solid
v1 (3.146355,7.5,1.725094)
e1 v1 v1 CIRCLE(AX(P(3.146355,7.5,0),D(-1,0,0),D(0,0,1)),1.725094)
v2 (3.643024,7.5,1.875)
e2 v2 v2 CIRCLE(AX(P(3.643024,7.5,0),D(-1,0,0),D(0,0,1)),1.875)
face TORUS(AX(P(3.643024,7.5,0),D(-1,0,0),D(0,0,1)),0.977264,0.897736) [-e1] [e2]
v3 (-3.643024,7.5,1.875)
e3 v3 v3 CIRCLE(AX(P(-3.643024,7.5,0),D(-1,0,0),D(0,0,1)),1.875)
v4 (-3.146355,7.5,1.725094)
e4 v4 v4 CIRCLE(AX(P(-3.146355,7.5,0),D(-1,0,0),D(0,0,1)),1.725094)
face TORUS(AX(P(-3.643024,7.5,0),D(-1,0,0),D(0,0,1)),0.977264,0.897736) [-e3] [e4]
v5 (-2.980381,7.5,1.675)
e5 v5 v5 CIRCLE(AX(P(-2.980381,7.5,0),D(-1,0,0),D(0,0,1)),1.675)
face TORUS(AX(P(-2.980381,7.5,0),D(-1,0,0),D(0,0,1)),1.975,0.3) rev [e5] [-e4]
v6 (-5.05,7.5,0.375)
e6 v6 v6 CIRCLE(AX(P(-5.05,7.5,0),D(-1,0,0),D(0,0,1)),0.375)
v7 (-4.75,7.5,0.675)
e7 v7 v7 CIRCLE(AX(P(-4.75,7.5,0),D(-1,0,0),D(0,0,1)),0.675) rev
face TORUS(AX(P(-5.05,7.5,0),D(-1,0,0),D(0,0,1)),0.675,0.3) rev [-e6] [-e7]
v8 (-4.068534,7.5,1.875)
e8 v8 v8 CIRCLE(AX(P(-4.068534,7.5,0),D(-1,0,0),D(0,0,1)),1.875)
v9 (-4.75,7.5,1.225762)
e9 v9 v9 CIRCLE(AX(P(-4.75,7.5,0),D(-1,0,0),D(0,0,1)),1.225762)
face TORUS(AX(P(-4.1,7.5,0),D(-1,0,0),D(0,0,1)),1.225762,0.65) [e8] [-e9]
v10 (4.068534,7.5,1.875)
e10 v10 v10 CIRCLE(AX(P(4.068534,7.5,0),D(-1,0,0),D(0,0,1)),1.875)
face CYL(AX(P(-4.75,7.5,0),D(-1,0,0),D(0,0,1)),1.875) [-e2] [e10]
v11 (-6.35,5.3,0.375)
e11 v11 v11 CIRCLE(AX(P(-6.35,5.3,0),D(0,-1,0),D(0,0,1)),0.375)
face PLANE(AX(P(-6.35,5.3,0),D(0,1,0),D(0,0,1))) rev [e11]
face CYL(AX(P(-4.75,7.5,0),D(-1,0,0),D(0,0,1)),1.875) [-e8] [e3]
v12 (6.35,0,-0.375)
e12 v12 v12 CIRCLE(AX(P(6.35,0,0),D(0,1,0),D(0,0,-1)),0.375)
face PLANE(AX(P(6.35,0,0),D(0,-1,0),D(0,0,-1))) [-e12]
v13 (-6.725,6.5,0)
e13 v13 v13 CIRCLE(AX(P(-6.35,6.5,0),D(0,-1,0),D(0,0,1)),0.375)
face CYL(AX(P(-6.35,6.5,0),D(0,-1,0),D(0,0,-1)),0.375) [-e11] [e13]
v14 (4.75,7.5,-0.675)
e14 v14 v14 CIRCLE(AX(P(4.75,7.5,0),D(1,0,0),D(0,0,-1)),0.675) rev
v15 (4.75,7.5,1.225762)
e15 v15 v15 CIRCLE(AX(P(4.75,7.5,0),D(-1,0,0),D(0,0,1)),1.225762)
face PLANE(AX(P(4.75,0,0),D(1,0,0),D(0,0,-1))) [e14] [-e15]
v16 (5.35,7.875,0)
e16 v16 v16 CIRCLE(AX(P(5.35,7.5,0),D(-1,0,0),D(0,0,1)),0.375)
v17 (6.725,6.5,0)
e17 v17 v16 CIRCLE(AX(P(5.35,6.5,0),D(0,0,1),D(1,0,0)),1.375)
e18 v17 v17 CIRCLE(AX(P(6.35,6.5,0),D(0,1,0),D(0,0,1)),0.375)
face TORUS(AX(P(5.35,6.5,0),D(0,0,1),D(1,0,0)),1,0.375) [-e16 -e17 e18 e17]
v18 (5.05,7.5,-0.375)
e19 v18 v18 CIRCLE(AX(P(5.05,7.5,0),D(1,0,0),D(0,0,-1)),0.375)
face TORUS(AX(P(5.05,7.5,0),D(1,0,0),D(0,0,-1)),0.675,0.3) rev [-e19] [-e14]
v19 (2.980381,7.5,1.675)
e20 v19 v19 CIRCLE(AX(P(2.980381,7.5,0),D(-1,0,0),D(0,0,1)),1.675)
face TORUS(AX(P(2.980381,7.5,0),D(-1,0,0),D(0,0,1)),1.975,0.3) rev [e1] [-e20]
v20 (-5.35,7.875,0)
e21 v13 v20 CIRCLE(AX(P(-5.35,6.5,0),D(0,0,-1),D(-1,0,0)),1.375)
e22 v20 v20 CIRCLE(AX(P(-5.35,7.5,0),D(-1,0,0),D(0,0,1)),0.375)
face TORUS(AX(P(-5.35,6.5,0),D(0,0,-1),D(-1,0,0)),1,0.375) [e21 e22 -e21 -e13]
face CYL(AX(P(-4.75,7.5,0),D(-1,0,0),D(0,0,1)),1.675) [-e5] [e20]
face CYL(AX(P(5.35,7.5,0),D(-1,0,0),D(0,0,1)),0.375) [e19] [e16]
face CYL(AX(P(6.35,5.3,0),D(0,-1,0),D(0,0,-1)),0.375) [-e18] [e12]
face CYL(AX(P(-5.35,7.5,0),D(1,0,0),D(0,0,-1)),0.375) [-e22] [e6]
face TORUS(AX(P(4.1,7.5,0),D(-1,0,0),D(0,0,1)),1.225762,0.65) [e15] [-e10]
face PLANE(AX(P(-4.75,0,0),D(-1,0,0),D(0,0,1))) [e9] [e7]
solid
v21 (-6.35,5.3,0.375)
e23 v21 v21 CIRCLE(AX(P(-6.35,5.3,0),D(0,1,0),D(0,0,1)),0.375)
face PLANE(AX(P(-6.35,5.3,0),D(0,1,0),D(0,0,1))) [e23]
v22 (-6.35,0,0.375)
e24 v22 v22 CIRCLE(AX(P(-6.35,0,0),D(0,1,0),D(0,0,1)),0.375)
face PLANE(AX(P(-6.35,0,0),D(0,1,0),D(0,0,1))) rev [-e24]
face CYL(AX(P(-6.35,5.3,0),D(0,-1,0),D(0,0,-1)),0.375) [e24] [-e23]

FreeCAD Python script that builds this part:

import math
import FreeCAD as App
import Part
import Sketcher


def edges_at(feature, points):
    """Names of the edges that pass closest to the given points."""
    edges = feature.Shape.Edges
    near = lambda p: min(range(len(edges)), key=lambda i: edges[i].distToShape(Part.Vertex(*p))[0])
    return sorted({f"Edge{near(p) + 1}" for p in points})

doc = App.newDocument("Part")
body = doc.addObject("PartDesign::Body", "Body")

# Sketch on XZ plane
sketch1 = body.newObject("Sketcher::SketchObject", "Sketch")
sketch1.AttachmentSupport = (doc.getObject("XZ_Plane"), [""])
sketch1.MapMode = "FlatFace"
sketch1.addGeometry(Part.Circle(App.Vector(-6.35, 0, 0), App.Vector(0, 0, 1), 0.38), False)
sketch1.addConstraint([
    Sketcher.Constraint("PointOnObject", 0, 3, -1),
    Sketcher.Constraint("Diameter", 0, 0.75),
    Sketcher.Constraint("DistanceX", 0, 3, -1, 1, 6.35),
])
pad1 = body.newObject("PartDesign::Pad", "Pad")
pad1.Profile = sketch1
pad1.Length = 5.3
pad1.Reversed = True
body2 = doc.addObject("PartDesign::Body", "Body001")

# Sketch on XZ plane
sketch2 = body2.newObject("Sketcher::SketchObject", "Sketch001")
sketch2.AttachmentSupport = (doc.getObject("XZ_Plane001"), [""])
sketch2.MapMode = "FlatFace"
sketch2.addGeometry(Part.Circle(App.Vector(6.35, 0, 0), App.Vector(0, 0, 1), 0.38), False)
sketch2.addConstraint([
    Sketcher.Constraint("PointOnObject", 0, 3, -1),
    Sketcher.Constraint("Diameter", 0, 0.75),
    Sketcher.Constraint("DistanceX", -1, 1, 0, 3, 6.35),
])
pad2 = body2.newObject("PartDesign::Pad", "Pad001")
pad2.Profile = sketch2
pad2.Length = 5.3
pad2.Reversed = True
body3 = doc.addObject("PartDesign::Body", "Body002")

# Sketch on XY plane
sketch3 = body3.newObject("Sketcher::SketchObject", "Sketch002")
sketch3.AttachmentSupport = (doc.getObject("XY_Plane002"), [""])
sketch3.MapMode = "FlatFace"
sketch3.addGeometry([
    Part.LineSegment(App.Vector(4.75, 7.5, 0), App.Vector(4.75, 8.73, 0)),  # 0
    Part.ArcOfCircle(Part.Circle(App.Vector(4.1, 8.73, 0), App.Vector(0, 0, 1), 0.65), math.radians(0), math.radians(93)),  # 1
    Part.LineSegment(App.Vector(4.07, 9.38, 0), App.Vector(3.64, 9.38, 0)),  # 2
    Part.ArcOfCircle(Part.Circle(App.Vector(3.64, 8.48, 0), App.Vector(0, 0, 1), 0.9), math.radians(90), math.radians(124)),  # 3
    Part.ArcOfCircle(Part.Circle(App.Vector(2.98, 9.48, 0), App.Vector(0, 0, 1), 0.3), math.radians(-90), math.radians(-56)),  # 4
    Part.LineSegment(App.Vector(2.98, 9.18, 0), App.Vector(-2.98, 9.18, 0)),  # 5
    Part.ArcOfCircle(Part.Circle(App.Vector(-2.98, 9.48, 0), App.Vector(0, 0, 1), 0.3), math.radians(-124), math.radians(-90)),  # 6
    Part.ArcOfCircle(Part.Circle(App.Vector(-3.64, 8.48, 0), App.Vector(0, 0, 1), 0.9), math.radians(56), math.radians(90)),  # 7
    Part.LineSegment(App.Vector(-3.64, 9.38, 0), App.Vector(-4.07, 9.38, 0)),  # 8
    Part.ArcOfCircle(Part.Circle(App.Vector(-4.1, 8.73, 0), App.Vector(0, 0, 1), 0.65), math.radians(87), math.radians(180)),  # 9
    Part.LineSegment(App.Vector(-4.75, 8.73, 0), App.Vector(-4.75, 7.5, 0)),  # 10
    Part.LineSegment(App.Vector(-4.75, 7.5, 0), App.Vector(4.75, 7.5, 0)),  # 11
], False)
sketch3.addGeometry(Part.LineSegment(App.Vector(-4.75, 7.5, 0), App.Vector(4.75, 7.5, 0)), True)  # axis
sketch3.addConstraint([
    Sketcher.Constraint("Tangent", 0, 2, 1, 1),
    Sketcher.Constraint("Coincident", 1, 2, 2, 1),
    Sketcher.Constraint("Tangent", 2, 2, 3, 1),
    Sketcher.Constraint("Tangent", 3, 2, 4, 2),
    Sketcher.Constraint("Tangent", 4, 1, 5, 1),
    Sketcher.Constraint("Tangent", 5, 2, 6, 2),
    Sketcher.Constraint("Tangent", 6, 1, 7, 1),
    Sketcher.Constraint("Tangent", 7, 2, 8, 1),
    Sketcher.Constraint("Coincident", 8, 2, 9, 1),
    Sketcher.Constraint("Tangent", 9, 2, 10, 1),
    Sketcher.Constraint("Coincident", 10, 2, 11, 1),
    Sketcher.Constraint("Coincident", 11, 2, 0, 1),
    Sketcher.Constraint("Vertical", 0),
    Sketcher.Constraint("Horizontal", 2),
    Sketcher.Constraint("Horizontal", 5),
    Sketcher.Constraint("Horizontal", 8),
    Sketcher.Constraint("Vertical", 10),
    Sketcher.Constraint("Horizontal", 11),
    Sketcher.Constraint("Horizontal", 12),
    Sketcher.Constraint("Coincident", 12, 1, 10, 2),
    Sketcher.Constraint("Equal", 4, 6),
    Sketcher.Constraint("Equal", 3, 7),
    Sketcher.Constraint("Equal", 1, 9),
    Sketcher.Constraint("Symmetric", 3, 3, 7, 3, -2),
    Sketcher.Constraint("Symmetric", 1, 3, 9, 3, -2),
    Sketcher.Constraint("Vertical", 0, 2, 12, 2),
    Sketcher.Constraint("Radius", 4, 0.3),
    Sketcher.Constraint("Radius", 1, 0.65),
    Sketcher.Constraint("DistanceX", 11, 1, 11, 2, 9.5),
    Sketcher.Constraint("DistanceY", -1, 1, 10, 2, 7.5),
    Sketcher.Constraint("DistanceY", 1, 2, 4, 3, 0.1),
    Sketcher.Constraint("DistanceY", -1, 1, 4, 3, 9.475),
    Sketcher.Constraint("Radius", 3, 0.897736),
    Sketcher.Constraint("DistanceX", 2, 2, 2, 1, 0.425511),
    Sketcher.Constraint("DistanceY", 3, 3, 1, 3, 0.248498),
])
revolution = body3.newObject("PartDesign::Revolution", "Revolution")
revolution.Profile = sketch3
revolution.ReferenceAxis = (sketch3, ["Axis0"])
revolution.Angle = 360
body2.AllowCompound = True
doc.recompute()

boolean = body2.newObject("PartDesign::Boolean", "Boolean")
boolean.Type = "Fuse"
boolean.addObjects([body3])

# Sketch on XZ plane
sketch4 = body2.newObject("Sketcher::SketchObject", "Sketch003")
sketch4.AttachmentSupport = (doc.getObject("XZ_Plane001"), [""])
sketch4.MapMode = "FlatFace"
sketch4.AttachmentOffset = App.Placement(App.Vector(0, 0, -5.3), App.Rotation())
sketch4.addGeometry(Part.Circle(App.Vector(6.35, 0, 0), App.Vector(0, 0, 1), 0.38), False)
sketch4.addConstraint([
    Sketcher.Constraint("PointOnObject", 0, 3, -1),
    Sketcher.Constraint("Diameter", 0, 0.75),
    Sketcher.Constraint("DistanceX", -1, 1, 0, 3, 6.35),
])

# Sketch on XY plane
sketch5 = body2.newObject("Sketcher::SketchObject", "Sketch004")
sketch5.AttachmentSupport = (doc.getObject("XY_Plane001"), [""])
sketch5.MapMode = "FlatFace"
sketch5.addGeometry([
    Part.LineSegment(App.Vector(3.5, 7.5, 0), App.Vector(5.3, 7.5, 0)),
    Part.ArcOfCircle(Part.Circle(App.Vector(5.3, 6.5, 0), App.Vector(0, 0, 1), 1), math.radians(0), math.radians(90)),
    Part.LineSegment(App.Vector(6.3, 6.5, 0), App.Vector(6.3, 5.3, 0)),
], False)
sketch5.addConstraint([
    Sketcher.Constraint("Tangent", 0, 2, 1, 2),
    Sketcher.Constraint("Tangent", 1, 1, 2, 1),
    Sketcher.Constraint("Horizontal", 0),
    Sketcher.Constraint("Vertical", 2),
    Sketcher.Constraint("Radius", 1, 1.0),
    Sketcher.Constraint("DistanceY", 2, 2, 2, 1, 1.2),
    Sketcher.Constraint("DistanceX", 0, 1, 0, 2, 1.85),
    Sketcher.Constraint("DistanceY", -1, 1, 1, 3, 6.5),
    Sketcher.Constraint("DistanceX", -1, 1, 0, 1, 3.5),
])
doc.recompute()

additivepipe = body2.newObject("PartDesign::AdditivePipe", "AdditivePipe")
additivepipe.Profile = sketch4
additivepipe.Spine = (sketch5, ["Edge1", "Edge2", "Edge3"])
doc.recompute()

mirrored = body2.newObject("PartDesign::Mirrored", "Mirrored")
mirrored.Originals = [additivepipe]
mirrored.MirrorPlane = (doc.getObject("YZ_Plane001"), [""])
body2.Tip = mirrored
doc.recompute()

fillet = body2.newObject("PartDesign::Fillet", "Fillet")
fillet.Base = (mirrored, edges_at(mirrored, [(4.75, 7.125, 0), (-4.75, 7.125, 0)]))
fillet.Radius = 0.3

doc.recompute()
